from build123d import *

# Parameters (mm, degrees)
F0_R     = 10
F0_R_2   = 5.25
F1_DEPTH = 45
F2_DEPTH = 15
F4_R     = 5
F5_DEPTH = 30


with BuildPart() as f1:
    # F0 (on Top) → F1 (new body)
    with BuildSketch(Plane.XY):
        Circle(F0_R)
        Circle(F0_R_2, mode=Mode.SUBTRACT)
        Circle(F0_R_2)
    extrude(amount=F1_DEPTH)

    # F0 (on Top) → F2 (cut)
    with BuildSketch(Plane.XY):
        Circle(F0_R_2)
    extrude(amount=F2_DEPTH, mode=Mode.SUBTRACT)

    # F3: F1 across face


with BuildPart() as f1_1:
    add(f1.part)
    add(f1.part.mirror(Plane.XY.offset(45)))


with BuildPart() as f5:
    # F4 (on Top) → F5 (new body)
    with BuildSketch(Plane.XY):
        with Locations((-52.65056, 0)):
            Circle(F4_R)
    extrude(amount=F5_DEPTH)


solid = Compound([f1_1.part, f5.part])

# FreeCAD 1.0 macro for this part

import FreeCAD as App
import Part
import Sketcher
Q = App.Units.Quantity

doc = App.newDocument("Part")
body = doc.addObject("PartDesign::Body", "Body")

# Sketch on XY plane
sketch1 = doc.addObject("Sketcher::SketchObject", "Sketch")
body.addObject(sketch1)
sketch1.AttachmentSupport = (doc.XY_Plane, [""])
sketch1.MapMode = "FlatFace"
sketch1.addGeometry(Part.Circle(App.Vector(0, 0, 0), App.Vector(0, 0, 1), 10), False)
sketch1.addConstraint([
    Sketcher.Constraint("Coincident", 0, 3, -1, 1),
    Sketcher.Constraint("Diameter", 0, Q("20 mm")),
])
pad1 = doc.addObject("PartDesign::Pad", "Pad")
body.addObject(pad1)
pad1.Profile = sketch1
pad1.Length = 45

# Sketch on XY plane
sketch2 = doc.addObject("Sketcher::SketchObject", "Sketch001")
body.addObject(sketch2)
sketch2.AttachmentSupport = (doc.XY_Plane, [""])
sketch2.MapMode = "FlatFace"
sketch2.addGeometry(Part.Circle(App.Vector(0, 0, 0), App.Vector(0, 0, 1), 5), False)
sketch2.addConstraint([
    Sketcher.Constraint("Coincident", 0, 3, -1, 1),
    Sketcher.Constraint("Diameter", 0, Q("10.5 mm")),
])
pocket1 = doc.addObject("PartDesign::Pocket", "Pocket")
body.addObject(pocket1)
pocket1.Profile = sketch2
pocket1.Length = 15
pocket1.Reversed = True
body2 = doc.addObject("PartDesign::Body", "Body001")
doc.recompute()

body2.BaseFeature = body
doc.recompute()

mirroring = doc.addObject("Part::Mirroring", "Mirroring")
mirroring.Source = body
mirroring.Base = App.Vector(0, 0, 45)
mirroring.Normal = App.Vector(0, 0, 1)
body3 = doc.addObject("PartDesign::Body", "Body002")
body3.BaseFeature = mirroring
boolean = doc.addObject("PartDesign::Boolean", "Boolean")
body2.addObject(boolean)
boolean.Type = "Fuse"
boolean.addObjects([body3])
doc.recompute()
body4 = doc.addObject("PartDesign::Body", "Body003")

# Sketch on XY plane
sketch3 = doc.addObject("Sketcher::SketchObject", "Sketch002")
body4.addObject(sketch3)
sketch3.AttachmentSupport = (doc.getObject("XY_Plane003"), [""])
sketch3.MapMode = "FlatFace"
sketch3.addGeometry(Part.Circle(App.Vector(-53, 0, 0), App.Vector(0, 0, 1), 5), False)
sketch3.addConstraint([
    Sketcher.Constraint("PointOnObject", 0, 3, -1),
    Sketcher.Constraint("Diameter", 0, Q("10 mm")),
    Sketcher.Constraint("DistanceX", 0, 3, -1, 1, Q("52.65056 mm")),
])
pad2 = doc.addObject("PartDesign::Pad", "Pad001")
body4.addObject(pad2)
pad2.Profile = sketch3
pad2.Length = 30
mirroring.Visibility = False

doc.recompute()
